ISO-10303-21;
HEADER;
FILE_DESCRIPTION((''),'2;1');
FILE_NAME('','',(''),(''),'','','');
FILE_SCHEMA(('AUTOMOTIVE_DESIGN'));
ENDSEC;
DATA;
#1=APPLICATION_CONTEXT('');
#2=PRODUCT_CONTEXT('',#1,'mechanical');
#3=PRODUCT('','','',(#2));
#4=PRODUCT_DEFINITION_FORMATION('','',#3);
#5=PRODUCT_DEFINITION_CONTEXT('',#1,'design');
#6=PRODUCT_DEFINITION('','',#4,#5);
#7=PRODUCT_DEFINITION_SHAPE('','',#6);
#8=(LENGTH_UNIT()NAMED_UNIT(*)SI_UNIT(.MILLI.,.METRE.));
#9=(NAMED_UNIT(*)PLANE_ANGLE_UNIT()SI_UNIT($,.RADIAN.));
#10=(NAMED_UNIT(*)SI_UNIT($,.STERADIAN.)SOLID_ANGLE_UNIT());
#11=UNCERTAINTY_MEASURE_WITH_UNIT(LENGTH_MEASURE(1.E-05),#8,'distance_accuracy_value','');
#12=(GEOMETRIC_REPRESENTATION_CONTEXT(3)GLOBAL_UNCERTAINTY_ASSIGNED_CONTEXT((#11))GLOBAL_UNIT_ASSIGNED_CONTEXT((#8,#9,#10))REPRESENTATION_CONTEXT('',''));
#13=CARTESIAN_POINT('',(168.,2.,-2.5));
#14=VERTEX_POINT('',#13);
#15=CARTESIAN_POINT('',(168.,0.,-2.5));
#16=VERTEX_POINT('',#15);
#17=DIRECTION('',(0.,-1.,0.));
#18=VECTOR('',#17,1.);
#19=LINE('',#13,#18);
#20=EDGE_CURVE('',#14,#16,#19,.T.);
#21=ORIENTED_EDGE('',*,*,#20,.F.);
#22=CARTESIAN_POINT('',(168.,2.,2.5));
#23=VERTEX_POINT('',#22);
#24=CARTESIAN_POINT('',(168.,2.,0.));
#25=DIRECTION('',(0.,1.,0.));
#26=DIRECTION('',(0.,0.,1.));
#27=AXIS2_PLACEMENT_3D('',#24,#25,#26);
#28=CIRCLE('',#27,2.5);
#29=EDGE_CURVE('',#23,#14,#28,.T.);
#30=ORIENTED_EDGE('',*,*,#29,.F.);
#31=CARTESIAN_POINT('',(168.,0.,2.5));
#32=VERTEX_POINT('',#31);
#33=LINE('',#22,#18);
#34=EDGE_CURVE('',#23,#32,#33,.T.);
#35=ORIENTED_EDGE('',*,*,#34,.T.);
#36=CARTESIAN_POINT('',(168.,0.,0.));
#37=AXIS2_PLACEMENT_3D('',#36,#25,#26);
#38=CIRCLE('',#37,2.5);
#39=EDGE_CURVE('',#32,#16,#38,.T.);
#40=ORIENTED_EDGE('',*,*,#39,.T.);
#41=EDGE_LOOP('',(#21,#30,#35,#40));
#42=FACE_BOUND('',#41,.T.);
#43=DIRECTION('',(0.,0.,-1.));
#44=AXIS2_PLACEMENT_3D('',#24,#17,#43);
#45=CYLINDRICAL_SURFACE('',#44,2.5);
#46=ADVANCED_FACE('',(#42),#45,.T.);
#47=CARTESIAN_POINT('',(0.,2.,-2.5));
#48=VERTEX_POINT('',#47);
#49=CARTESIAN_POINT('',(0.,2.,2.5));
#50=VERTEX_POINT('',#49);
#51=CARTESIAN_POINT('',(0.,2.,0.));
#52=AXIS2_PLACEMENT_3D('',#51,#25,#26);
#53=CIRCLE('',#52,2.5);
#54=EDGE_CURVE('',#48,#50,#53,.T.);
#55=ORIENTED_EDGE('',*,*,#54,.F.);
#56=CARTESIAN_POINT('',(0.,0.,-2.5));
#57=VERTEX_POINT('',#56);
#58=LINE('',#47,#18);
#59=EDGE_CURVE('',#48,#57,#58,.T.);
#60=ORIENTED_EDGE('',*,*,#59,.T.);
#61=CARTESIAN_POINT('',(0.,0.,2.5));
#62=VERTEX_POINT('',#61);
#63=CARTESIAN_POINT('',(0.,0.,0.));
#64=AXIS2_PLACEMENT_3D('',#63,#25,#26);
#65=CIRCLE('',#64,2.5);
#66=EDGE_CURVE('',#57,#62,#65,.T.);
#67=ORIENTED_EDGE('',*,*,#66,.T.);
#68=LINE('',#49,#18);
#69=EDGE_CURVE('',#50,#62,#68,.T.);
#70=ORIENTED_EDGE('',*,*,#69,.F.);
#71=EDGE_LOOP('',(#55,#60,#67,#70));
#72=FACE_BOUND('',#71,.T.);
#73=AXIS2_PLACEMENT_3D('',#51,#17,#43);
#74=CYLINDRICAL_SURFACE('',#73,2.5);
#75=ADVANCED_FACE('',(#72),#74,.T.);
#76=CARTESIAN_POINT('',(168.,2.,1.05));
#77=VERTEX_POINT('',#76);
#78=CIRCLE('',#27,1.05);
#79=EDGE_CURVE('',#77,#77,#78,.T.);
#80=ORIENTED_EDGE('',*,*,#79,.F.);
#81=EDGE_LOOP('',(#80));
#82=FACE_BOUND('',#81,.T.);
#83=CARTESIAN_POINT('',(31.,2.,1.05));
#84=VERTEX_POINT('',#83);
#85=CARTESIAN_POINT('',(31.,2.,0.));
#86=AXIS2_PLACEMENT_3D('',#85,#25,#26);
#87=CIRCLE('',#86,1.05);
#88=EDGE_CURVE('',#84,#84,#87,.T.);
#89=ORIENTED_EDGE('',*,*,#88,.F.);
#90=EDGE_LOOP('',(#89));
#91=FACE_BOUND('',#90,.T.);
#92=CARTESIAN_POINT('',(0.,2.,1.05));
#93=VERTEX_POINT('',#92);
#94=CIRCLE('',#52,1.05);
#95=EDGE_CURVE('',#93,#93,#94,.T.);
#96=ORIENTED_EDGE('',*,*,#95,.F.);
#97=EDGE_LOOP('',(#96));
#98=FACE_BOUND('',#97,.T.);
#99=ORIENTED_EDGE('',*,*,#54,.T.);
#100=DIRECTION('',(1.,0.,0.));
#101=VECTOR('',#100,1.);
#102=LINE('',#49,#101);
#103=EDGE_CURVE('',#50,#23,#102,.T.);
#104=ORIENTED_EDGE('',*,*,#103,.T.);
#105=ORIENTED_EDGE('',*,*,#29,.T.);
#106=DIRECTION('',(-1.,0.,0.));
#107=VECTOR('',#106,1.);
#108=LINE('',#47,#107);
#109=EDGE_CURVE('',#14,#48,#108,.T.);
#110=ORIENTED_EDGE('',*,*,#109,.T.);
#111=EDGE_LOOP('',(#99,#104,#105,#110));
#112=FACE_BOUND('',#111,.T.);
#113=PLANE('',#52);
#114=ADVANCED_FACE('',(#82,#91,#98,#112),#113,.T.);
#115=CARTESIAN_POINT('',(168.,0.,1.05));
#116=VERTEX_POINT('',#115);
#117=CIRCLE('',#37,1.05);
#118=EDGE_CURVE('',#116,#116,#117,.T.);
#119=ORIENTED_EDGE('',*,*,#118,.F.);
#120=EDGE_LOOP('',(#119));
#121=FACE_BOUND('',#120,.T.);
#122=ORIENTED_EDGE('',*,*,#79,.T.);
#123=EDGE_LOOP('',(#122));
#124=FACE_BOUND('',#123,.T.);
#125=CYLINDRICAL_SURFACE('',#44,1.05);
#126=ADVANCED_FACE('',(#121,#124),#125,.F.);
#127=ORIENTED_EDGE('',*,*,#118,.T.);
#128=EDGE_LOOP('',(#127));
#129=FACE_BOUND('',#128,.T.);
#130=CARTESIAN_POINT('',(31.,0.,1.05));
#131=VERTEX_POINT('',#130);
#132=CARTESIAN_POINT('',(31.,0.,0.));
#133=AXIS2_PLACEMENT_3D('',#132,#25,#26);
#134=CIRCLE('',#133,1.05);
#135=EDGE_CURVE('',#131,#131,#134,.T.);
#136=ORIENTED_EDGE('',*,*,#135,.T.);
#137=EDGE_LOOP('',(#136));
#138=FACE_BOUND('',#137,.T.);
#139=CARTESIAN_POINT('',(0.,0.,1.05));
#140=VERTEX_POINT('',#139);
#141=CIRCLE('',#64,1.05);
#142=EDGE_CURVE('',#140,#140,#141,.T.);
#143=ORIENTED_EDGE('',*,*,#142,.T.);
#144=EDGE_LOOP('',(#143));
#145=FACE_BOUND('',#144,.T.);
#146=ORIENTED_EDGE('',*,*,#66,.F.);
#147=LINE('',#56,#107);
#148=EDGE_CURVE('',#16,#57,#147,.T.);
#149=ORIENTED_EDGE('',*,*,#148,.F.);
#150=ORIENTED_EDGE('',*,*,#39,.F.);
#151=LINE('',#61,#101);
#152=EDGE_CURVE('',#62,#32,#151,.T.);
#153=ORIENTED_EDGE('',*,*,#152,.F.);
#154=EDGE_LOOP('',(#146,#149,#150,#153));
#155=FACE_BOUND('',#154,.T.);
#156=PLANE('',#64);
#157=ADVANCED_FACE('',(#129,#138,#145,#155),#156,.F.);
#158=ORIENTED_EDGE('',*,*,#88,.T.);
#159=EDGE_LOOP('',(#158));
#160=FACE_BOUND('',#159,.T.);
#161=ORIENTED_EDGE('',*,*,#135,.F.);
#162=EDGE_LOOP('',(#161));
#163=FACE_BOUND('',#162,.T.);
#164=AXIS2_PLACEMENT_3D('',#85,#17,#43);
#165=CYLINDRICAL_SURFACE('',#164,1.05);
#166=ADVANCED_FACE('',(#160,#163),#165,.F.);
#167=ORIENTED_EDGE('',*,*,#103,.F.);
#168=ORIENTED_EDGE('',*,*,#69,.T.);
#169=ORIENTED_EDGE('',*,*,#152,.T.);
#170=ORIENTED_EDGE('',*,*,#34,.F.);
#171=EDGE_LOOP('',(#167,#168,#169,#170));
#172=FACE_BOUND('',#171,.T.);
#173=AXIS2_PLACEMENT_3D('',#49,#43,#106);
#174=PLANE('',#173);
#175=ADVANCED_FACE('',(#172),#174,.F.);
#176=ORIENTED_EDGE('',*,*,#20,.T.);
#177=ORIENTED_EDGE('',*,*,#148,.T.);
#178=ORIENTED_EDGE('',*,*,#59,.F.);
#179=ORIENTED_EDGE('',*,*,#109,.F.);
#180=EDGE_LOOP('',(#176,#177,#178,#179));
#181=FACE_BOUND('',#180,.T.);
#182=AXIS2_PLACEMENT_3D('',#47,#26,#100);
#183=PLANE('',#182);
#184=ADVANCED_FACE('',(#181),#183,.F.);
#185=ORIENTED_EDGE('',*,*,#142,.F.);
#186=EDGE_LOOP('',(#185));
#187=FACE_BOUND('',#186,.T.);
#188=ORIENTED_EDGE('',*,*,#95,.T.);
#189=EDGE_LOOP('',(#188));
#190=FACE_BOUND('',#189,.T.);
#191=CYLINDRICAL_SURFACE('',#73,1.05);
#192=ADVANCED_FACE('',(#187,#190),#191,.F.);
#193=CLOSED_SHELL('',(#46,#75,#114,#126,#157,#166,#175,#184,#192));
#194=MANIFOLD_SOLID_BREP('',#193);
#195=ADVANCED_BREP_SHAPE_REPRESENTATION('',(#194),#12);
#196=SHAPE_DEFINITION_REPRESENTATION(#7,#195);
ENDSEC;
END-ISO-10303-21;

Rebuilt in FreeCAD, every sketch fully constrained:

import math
import FreeCAD as App
import Part
import Sketcher

V = App.Vector

doc = App.newDocument("Part")
body = doc.addObject("PartDesign::Body", "Body")

# Sketch on XZ plane
sketch1 = body.newObject("Sketcher::SketchObject", "Sketch")
sketch1.AttachmentSupport = (doc.getObject("XZ_Plane"), [""])
sketch1.MapMode = "FlatFace"
sketch1.addGeometry(Part.LineSegment(V(168, -2.5, 0), V(0, -2.5, 0)), False)
sketch1.addGeometry(Part.ArcOfCircle(Part.Circle(V(0, 0, 0), V(0, 0, 1), 2.5), math.radians(90), math.radians(270)), False)
sketch1.addGeometry(Part.LineSegment(V(0, 2.5, 0), V(168, 2.5, 0)), False)
sketch1.addGeometry(Part.ArcOfCircle(Part.Circle(V(168, 0, 0), V(0, 0, 1), 2.5), math.radians(-90), math.radians(90)), False)
sketch1.addGeometry(Part.Circle(V(168, 0, 0), V(0, 0, 1), 1.05), False)
sketch1.addGeometry(Part.Circle(V(31, 0, 0), V(0, 0, 1), 1.05), False)
sketch1.addGeometry(Part.Circle(V(0, 0, 0), V(0, 0, 1), 1.05), False)
sketch1.addConstraint(Sketcher.Constraint("Tangent", 0, 2, 1, 2))
sketch1.addConstraint(Sketcher.Constraint("Tangent", 1, 1, 2, 1))
sketch1.addConstraint(Sketcher.Constraint("Tangent", 2, 2, 3, 2))
sketch1.addConstraint(Sketcher.Constraint("Tangent", 3, 1, 0, 1))
sketch1.addConstraint(Sketcher.Constraint("Horizontal", 0))
sketch1.addConstraint(Sketcher.Constraint("Horizontal", 2))
sketch1.addConstraint(Sketcher.Constraint("Coincident", 1, 3, -1, 1))
sketch1.addConstraint(Sketcher.Constraint("Coincident", 6, 3, -1, 1))
sketch1.addConstraint(Sketcher.Constraint("Coincident", 4, 3, 3, 3))
sketch1.addConstraint(Sketcher.Constraint("Equal", 4, 5))
sketch1.addConstraint(Sketcher.Constraint("Equal", 5, 6))
sketch1.addConstraint(Sketcher.Constraint("PointOnObject", 5, 3, -1))
sketch1.addConstraint(Sketcher.Constraint("Diameter", 4, 2.1))
sketch1.addConstraint(Sketcher.Constraint("Radius", 1, 2.5))
sketch1.addConstraint(Sketcher.Constraint("DistanceX", 0, 2, 0, 1, 168.0))
sketch1.addConstraint(Sketcher.Constraint("DistanceX", -1, 1, 5, 3, 31.0))
pad1 = body.newObject("PartDesign::Pad", "Pad")
pad1.Profile = sketch1
pad1.Length = 2
pad1.Reversed = True

doc.recompute()
